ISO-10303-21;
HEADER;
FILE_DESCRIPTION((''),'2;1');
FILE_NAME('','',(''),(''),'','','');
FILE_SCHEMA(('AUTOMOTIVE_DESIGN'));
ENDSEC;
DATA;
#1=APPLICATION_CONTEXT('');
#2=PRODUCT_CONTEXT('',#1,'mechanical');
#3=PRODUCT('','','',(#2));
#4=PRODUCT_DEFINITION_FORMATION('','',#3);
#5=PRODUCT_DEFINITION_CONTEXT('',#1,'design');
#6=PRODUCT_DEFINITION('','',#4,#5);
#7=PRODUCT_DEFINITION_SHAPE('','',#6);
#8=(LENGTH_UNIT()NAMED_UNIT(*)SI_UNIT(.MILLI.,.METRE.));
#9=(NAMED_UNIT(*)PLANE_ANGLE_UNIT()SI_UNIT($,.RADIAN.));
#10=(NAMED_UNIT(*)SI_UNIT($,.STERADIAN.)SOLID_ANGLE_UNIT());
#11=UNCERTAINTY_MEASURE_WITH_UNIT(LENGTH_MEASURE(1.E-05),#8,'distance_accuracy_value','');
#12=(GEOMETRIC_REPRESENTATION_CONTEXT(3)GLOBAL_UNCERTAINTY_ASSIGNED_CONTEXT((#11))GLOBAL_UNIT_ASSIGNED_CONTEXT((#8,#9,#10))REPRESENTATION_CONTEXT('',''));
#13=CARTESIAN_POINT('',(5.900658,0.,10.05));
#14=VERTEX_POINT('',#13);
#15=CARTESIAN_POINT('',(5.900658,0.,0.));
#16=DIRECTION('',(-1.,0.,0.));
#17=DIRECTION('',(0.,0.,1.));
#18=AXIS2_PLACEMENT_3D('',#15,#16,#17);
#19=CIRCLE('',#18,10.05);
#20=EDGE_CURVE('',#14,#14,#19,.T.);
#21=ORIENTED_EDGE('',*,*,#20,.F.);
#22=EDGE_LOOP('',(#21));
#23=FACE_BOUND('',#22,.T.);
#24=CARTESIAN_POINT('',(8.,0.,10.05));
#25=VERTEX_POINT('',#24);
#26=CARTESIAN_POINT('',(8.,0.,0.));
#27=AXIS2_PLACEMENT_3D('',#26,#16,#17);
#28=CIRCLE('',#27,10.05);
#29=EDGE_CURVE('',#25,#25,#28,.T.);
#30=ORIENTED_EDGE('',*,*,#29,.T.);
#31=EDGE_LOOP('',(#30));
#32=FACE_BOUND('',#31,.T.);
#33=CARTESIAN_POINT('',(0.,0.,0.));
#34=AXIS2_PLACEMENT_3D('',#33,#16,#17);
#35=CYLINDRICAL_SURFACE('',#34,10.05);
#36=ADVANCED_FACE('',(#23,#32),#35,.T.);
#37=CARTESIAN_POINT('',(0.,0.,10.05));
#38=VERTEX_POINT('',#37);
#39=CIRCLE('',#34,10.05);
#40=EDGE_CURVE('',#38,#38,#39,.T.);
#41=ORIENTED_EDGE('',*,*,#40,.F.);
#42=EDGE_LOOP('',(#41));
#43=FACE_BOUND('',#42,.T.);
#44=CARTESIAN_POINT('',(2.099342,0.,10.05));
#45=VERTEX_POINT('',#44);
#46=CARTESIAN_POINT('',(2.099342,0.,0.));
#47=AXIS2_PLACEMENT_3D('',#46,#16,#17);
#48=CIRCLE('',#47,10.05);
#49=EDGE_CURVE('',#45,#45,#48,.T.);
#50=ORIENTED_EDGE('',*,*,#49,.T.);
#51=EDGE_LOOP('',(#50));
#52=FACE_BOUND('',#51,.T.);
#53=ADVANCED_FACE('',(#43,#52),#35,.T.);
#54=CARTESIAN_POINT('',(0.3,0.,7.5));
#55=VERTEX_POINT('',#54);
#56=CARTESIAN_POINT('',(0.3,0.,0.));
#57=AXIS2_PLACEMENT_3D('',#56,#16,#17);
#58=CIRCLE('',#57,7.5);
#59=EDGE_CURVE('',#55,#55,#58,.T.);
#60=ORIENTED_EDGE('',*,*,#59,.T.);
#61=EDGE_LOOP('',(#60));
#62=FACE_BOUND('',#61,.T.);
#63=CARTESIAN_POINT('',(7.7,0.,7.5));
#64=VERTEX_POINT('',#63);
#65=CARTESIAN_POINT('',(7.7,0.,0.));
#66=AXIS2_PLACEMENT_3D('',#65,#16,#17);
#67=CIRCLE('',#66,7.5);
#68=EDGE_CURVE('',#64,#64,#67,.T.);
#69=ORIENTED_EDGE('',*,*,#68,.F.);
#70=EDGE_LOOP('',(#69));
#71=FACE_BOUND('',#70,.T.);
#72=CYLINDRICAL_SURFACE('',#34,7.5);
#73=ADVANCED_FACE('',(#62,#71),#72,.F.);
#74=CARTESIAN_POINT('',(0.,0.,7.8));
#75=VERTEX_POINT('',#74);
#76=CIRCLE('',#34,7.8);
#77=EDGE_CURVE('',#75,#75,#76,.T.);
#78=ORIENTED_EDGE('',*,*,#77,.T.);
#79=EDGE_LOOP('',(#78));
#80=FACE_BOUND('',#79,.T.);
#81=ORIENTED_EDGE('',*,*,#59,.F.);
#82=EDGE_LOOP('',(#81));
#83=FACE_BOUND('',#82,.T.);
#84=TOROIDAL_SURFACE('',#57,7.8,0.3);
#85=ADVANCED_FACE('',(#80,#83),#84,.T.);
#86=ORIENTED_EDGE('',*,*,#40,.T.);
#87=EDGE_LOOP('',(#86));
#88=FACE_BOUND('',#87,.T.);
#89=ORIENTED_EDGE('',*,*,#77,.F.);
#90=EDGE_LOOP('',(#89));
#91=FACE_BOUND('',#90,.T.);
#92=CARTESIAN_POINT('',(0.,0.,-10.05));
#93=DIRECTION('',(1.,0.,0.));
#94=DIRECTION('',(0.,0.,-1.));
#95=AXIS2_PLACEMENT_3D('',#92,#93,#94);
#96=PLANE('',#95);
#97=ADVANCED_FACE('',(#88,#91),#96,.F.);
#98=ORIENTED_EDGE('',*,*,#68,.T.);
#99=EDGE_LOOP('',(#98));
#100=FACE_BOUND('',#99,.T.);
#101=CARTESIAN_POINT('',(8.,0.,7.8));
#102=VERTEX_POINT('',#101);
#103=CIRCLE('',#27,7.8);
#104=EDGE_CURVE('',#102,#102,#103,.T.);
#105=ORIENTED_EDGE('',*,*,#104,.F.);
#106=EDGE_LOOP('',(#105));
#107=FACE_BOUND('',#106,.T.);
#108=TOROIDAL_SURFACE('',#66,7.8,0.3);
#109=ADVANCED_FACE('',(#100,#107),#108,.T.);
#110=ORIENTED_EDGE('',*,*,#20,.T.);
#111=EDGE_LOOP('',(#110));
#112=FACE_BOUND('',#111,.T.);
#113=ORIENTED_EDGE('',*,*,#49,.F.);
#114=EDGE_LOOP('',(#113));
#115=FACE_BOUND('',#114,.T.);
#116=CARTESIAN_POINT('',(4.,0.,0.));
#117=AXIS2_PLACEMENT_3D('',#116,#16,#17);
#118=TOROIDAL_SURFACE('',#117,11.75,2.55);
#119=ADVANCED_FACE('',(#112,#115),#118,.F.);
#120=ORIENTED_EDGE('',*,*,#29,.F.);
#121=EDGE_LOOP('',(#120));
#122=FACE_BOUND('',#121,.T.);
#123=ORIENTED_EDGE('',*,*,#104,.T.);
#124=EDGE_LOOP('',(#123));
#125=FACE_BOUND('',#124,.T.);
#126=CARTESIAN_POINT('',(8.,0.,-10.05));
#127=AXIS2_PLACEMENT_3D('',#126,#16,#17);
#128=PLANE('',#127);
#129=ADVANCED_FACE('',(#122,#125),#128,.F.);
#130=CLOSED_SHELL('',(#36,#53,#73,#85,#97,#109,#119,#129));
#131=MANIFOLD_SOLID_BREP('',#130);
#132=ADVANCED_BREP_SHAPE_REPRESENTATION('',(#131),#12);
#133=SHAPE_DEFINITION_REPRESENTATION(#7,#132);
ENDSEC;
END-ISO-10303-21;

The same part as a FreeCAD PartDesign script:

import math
import FreeCAD as App
import Part
import Sketcher

V = App.Vector

doc = App.newDocument("Part")
params = doc.addObject("Spreadsheet::Sheet", "Params")
for row, (alias, value) in enumerate([
    ("sketch1_radius", "0.3 mm"),
    ("sketch1_radius2", "2.55 mm"),
    ("sketch1_width", "7.4 mm"),
    ("sketch1_height", "2.25 mm"),
    ("revolution_angle", "360 deg"),
], start=1):
    params.set(f"A{row}", alias)
    params.set(f"B{row}", "=" + value)
    params.setAlias(f"B{row}", alias)

body = doc.addObject("PartDesign::Body", "Body")

# Sketch on XZ plane
sketch1 = body.newObject("Sketcher::SketchObject", "Sketch")
sketch1.AttachmentSupport = (doc.getObject("XZ_Plane"), [""])
sketch1.MapMode = "FlatFace"
sketch1.addGeometry([
    Part.LineSegment(V(0, -10.05, 0), V(0, -7.8, 0)),  # 0
    Part.ArcOfCircle(Part.Circle(V(0.3, -7.8, 0), V(0, 0, 1), 0.3), math.radians(90), math.radians(180)),  # 1
    Part.LineSegment(V(0.3, -7.5, 0), V(7.7, -7.5, 0)),  # 2
    Part.ArcOfCircle(Part.Circle(V(7.7, -7.8, 0), V(0, 0, 1), 0.3), math.radians(0), math.radians(90)),  # 3
    Part.LineSegment(V(8, -7.8, 0), V(8, -10.05, 0)),  # 4
    Part.LineSegment(V(8, -10.05, 0), V(5.9, -10.05, 0)),  # 5
    Part.ArcOfCircle(Part.Circle(V(4, -11.75, 0), V(0, 0, 1), 2.55), math.radians(42), math.radians(138)),  # 6
    Part.LineSegment(V(2.1, -10.05, 0), V(0, -10.05, 0)),  # 7
], False)
sketch1.addConstraint([
    Sketcher.Constraint("Tangent", 0, 2, 1, 2),
    Sketcher.Constraint("Tangent", 1, 1, 2, 1),
    Sketcher.Constraint("Tangent", 2, 2, 3, 2),
    Sketcher.Constraint("Tangent", 3, 1, 4, 1),
    Sketcher.Constraint("Coincident", 4, 2, 5, 1),
    Sketcher.Constraint("Coincident", 5, 2, 6, 1),
    Sketcher.Constraint("Coincident", 6, 2, 7, 1),
    Sketcher.Constraint("Coincident", 7, 2, 0, 1),
    Sketcher.Constraint("Vertical", 0),
    Sketcher.Constraint("Horizontal", 2),
    Sketcher.Constraint("Vertical", 4),
    Sketcher.Constraint("Horizontal", 5),
    Sketcher.Constraint("Horizontal", 7),
    Sketcher.Constraint("Equal", 1, 3),
    Sketcher.Constraint("PointOnObject", 0, 2, -2),
    Sketcher.Constraint("Horizontal", 5, 2, 6, 2),
    Sketcher.Constraint("Equal", 5, 7),
    Sketcher.Constraint("Radius", 1, 0.3),
    Sketcher.Constraint("Radius", 6, 2.55),
    Sketcher.Constraint("DistanceX", 2, 1, 2, 2, 7.4),
    Sketcher.Constraint("DistanceY", 0, 1, 0, 2, 2.25),
    Sketcher.Constraint("DistanceY", 1, 3, -1, 1, 7.8),
    Sketcher.Constraint("DistanceY", 6, 3, 4, 2, 1.7),
])
sketch1.setExpression("Constraints[17]", "Params.sketch1_radius")
sketch1.setExpression("Constraints[18]", "Params.sketch1_radius2")
sketch1.setExpression("Constraints[19]", "Params.sketch1_width")
sketch1.setExpression("Constraints[20]", "Params.sketch1_height")
revolution = body.newObject("PartDesign::Revolution", "Revolution")
revolution.Profile = sketch1
revolution.ReferenceAxis = (sketch1, ["H_Axis"])
revolution.setExpression("Angle", "Params.revolution_angle")

doc.recompute()
